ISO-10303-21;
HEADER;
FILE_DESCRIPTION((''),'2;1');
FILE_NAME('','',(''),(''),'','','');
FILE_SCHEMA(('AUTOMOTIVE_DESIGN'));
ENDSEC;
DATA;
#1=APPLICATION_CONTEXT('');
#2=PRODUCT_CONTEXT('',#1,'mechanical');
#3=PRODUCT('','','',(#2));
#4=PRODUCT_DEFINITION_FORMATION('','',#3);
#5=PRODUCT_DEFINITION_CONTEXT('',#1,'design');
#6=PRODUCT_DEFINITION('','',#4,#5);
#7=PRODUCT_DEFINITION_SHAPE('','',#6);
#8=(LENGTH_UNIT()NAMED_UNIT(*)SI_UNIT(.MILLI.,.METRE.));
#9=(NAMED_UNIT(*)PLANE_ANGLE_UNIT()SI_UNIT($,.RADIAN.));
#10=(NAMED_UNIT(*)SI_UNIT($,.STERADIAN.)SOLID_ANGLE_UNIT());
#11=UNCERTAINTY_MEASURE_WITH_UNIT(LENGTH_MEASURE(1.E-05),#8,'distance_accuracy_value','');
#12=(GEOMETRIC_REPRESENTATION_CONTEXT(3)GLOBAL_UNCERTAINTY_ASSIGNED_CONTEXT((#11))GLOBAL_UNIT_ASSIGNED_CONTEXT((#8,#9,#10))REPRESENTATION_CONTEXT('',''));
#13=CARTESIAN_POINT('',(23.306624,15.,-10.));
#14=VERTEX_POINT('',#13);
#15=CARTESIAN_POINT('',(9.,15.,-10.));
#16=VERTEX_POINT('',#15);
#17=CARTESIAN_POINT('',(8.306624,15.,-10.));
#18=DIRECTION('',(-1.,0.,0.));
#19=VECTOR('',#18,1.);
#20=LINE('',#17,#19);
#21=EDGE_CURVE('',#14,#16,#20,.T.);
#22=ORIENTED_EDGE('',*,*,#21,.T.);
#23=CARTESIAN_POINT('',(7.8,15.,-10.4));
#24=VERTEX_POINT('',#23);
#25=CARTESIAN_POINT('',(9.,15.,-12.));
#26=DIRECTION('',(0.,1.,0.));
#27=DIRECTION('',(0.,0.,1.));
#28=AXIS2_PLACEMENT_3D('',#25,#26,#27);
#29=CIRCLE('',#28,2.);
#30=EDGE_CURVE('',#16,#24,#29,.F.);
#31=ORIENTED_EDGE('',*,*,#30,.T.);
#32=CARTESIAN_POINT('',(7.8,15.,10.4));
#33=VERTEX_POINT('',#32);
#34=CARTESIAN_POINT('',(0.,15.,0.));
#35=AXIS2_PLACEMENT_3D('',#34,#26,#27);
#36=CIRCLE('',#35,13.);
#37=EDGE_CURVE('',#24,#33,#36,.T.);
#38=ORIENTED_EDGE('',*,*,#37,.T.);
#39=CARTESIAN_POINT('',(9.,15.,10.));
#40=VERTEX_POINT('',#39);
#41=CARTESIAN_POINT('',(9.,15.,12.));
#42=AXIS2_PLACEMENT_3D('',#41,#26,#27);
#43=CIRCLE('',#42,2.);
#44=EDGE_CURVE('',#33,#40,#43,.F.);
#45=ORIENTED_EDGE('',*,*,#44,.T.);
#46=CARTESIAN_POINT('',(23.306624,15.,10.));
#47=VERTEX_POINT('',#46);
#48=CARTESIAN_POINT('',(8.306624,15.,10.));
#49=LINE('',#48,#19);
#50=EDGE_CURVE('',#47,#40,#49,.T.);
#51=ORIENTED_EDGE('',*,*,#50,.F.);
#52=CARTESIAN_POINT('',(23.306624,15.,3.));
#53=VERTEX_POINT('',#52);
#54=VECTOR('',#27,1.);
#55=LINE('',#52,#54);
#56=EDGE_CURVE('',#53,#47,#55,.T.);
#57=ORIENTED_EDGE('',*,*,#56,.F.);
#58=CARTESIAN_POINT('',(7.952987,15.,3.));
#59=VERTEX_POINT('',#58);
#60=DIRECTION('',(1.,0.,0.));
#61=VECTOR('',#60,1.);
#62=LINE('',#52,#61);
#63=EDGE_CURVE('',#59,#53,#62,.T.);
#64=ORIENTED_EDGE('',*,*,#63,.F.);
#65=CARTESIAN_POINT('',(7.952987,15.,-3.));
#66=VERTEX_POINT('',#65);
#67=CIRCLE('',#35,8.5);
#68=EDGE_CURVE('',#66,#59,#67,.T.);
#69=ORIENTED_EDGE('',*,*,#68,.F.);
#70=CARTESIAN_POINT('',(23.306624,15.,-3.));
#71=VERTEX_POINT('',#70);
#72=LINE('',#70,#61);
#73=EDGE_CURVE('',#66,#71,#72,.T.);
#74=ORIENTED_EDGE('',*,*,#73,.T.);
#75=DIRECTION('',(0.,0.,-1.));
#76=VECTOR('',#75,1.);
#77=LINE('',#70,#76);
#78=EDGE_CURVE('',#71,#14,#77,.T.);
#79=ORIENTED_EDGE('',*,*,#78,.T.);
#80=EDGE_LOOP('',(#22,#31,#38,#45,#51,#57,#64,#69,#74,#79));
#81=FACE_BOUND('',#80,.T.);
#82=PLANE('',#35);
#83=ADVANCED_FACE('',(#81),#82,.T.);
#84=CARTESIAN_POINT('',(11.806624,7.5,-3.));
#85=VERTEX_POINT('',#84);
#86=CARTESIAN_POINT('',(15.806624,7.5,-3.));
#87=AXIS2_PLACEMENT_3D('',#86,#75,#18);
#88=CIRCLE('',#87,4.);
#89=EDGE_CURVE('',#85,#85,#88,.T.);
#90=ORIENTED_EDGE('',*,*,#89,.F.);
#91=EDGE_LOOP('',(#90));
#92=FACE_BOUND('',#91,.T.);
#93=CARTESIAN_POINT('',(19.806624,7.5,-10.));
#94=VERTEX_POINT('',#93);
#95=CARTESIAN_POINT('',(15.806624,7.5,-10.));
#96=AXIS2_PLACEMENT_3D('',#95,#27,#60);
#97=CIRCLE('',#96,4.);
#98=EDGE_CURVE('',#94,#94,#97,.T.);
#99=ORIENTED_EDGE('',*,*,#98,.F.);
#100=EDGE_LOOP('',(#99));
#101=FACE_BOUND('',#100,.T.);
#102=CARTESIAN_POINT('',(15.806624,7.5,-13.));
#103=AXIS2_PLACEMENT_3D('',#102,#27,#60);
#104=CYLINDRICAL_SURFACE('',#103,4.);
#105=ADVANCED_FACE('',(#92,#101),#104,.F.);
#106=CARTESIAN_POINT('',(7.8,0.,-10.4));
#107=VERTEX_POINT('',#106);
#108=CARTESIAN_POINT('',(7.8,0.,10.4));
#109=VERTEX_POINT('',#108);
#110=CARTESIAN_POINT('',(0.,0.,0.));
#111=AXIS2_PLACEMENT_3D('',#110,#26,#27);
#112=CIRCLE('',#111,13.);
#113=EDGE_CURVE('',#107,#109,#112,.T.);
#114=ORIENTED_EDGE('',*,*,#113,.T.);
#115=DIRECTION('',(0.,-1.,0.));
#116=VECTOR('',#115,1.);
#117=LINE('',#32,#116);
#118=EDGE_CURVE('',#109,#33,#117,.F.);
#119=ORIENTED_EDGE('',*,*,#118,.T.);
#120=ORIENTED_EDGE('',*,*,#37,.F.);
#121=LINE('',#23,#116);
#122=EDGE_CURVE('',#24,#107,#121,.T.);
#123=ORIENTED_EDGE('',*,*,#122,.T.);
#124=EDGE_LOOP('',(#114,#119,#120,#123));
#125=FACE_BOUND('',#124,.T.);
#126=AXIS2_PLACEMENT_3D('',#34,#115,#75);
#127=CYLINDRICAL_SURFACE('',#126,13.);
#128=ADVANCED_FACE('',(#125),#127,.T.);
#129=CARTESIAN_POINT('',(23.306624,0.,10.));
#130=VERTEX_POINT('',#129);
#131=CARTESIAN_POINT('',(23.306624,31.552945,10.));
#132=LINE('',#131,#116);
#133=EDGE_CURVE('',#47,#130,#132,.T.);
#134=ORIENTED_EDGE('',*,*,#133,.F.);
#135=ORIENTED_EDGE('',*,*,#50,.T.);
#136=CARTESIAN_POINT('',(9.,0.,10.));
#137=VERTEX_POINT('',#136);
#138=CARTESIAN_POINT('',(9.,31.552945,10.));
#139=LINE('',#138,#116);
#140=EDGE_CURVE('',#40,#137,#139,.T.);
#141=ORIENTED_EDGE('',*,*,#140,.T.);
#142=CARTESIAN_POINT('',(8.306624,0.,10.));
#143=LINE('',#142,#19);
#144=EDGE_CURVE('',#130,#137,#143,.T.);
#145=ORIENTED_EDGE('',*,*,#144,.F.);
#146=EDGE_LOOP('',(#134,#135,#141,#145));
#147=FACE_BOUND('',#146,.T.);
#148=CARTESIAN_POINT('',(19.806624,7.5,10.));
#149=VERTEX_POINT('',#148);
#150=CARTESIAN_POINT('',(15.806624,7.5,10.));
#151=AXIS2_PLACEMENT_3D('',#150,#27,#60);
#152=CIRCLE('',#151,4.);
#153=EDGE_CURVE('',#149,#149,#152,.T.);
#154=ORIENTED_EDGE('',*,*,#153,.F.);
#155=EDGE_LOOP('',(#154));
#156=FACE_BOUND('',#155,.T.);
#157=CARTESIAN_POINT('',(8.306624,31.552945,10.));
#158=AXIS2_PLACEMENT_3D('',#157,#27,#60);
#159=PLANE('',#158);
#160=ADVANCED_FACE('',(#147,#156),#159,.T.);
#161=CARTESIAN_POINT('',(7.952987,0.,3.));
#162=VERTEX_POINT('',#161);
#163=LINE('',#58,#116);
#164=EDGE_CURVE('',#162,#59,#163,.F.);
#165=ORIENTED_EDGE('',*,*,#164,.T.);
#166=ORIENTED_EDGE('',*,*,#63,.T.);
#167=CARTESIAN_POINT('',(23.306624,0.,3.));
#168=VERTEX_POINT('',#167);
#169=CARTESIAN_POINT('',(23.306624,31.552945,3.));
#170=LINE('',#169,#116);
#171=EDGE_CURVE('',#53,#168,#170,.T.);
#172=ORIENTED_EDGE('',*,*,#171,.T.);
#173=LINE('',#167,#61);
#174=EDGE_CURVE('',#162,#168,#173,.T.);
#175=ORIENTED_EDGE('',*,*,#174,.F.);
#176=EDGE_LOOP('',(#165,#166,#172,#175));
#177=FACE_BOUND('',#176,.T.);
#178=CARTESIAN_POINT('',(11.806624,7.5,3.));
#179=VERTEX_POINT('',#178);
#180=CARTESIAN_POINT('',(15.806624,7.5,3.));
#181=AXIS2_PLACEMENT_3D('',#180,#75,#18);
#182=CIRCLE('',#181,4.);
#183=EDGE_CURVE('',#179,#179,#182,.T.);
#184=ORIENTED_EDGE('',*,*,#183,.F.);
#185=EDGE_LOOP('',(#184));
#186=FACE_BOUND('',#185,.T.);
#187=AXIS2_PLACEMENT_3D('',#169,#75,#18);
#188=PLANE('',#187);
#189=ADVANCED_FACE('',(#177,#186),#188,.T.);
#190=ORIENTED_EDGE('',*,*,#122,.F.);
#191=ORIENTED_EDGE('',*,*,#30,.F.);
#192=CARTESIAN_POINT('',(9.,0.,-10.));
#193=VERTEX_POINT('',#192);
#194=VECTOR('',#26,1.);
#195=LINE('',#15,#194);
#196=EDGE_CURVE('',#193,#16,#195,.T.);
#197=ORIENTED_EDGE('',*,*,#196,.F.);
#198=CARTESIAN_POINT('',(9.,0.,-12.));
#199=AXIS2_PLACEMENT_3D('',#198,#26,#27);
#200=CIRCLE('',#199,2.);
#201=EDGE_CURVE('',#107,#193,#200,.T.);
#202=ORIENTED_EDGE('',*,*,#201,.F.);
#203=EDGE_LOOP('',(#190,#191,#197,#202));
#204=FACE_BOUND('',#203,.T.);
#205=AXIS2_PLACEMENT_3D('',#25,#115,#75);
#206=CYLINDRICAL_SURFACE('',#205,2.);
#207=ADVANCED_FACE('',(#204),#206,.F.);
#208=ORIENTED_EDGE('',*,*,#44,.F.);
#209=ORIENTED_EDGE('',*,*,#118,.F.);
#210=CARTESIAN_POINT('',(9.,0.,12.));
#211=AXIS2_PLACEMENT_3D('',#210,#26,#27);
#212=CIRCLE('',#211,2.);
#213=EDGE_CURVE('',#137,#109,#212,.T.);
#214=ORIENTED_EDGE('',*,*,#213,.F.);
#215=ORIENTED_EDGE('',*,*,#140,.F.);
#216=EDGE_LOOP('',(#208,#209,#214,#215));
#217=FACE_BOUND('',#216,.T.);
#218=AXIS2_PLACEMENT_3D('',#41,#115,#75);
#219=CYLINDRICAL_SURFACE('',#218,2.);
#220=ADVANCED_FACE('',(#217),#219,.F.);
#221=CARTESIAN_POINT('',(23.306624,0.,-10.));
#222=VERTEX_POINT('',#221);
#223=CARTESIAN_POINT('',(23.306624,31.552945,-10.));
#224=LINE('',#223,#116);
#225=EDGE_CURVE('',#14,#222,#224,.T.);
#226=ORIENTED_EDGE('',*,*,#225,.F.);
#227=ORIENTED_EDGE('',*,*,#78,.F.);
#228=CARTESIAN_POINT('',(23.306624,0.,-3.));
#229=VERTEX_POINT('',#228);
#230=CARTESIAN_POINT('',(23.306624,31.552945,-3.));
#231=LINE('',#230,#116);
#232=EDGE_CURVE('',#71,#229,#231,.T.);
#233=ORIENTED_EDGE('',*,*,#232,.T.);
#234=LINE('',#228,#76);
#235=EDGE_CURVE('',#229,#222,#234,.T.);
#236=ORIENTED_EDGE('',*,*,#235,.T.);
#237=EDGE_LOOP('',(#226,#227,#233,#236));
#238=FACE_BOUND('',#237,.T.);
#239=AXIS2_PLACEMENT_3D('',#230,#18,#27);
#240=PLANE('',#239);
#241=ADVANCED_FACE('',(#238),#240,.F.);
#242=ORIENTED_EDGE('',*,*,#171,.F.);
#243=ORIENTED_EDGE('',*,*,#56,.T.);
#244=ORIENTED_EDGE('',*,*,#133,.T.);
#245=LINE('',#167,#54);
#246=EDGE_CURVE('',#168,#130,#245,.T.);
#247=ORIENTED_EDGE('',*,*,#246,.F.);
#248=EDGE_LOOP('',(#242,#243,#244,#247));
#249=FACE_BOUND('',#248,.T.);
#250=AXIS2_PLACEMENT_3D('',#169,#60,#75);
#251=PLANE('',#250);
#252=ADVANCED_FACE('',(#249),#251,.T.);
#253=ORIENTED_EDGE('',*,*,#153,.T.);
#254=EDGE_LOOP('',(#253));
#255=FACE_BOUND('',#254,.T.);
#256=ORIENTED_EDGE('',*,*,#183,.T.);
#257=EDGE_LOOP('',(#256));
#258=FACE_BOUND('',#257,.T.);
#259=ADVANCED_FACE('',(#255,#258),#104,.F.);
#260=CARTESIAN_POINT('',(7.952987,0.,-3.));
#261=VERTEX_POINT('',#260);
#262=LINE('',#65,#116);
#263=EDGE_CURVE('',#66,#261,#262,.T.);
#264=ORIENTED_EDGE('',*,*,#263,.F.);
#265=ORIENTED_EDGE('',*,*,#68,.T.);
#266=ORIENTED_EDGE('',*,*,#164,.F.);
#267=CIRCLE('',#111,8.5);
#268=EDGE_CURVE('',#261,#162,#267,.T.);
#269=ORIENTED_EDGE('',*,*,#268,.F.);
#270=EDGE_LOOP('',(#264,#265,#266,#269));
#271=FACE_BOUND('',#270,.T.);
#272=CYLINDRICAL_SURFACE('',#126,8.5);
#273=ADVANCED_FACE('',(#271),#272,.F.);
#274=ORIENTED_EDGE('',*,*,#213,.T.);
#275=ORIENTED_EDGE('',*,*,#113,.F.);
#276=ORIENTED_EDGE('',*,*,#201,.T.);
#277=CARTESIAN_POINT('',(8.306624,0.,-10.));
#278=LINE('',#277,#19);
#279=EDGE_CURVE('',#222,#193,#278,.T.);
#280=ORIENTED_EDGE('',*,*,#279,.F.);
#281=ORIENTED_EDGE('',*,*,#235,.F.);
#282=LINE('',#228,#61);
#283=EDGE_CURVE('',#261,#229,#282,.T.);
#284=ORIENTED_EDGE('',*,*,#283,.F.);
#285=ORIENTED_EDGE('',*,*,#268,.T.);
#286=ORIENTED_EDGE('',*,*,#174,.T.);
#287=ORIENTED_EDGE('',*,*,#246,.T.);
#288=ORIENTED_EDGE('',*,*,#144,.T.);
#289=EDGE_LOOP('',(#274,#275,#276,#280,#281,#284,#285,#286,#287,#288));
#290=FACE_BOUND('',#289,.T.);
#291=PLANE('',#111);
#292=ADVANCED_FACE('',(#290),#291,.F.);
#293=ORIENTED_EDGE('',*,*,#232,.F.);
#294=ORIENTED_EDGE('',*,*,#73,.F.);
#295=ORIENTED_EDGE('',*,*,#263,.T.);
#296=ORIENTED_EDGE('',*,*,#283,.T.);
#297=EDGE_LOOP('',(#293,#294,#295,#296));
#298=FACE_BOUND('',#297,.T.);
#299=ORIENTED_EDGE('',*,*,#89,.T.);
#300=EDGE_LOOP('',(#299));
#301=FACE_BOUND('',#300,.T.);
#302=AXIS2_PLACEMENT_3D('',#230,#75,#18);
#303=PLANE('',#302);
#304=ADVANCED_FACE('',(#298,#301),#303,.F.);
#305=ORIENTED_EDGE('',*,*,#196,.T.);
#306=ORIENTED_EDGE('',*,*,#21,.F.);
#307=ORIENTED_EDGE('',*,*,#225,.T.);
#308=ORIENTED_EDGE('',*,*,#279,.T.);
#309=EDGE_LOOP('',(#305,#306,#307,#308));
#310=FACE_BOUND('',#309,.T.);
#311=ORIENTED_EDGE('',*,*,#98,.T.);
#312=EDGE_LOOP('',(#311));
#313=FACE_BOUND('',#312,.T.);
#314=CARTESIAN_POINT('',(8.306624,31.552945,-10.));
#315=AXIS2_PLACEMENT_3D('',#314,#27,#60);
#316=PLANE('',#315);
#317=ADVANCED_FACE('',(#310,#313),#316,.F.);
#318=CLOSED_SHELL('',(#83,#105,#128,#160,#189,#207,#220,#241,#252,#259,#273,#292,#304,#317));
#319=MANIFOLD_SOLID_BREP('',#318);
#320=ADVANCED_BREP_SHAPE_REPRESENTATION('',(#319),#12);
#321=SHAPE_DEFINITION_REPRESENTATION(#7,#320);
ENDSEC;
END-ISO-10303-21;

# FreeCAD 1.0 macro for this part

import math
import FreeCAD as App
import Part
import Sketcher


def edges_at(feature, points):
    """Names of the edges that pass closest to the given points."""
    edges = feature.Shape.Edges
    near = lambda p: min(range(len(edges)), key=lambda i: edges[i].distToShape(Part.Vertex(*p))[0])
    return sorted({f"Edge{near(p) + 1}" for p in points})

doc = App.newDocument("Part")
body = doc.addObject("PartDesign::Body", "Body")

sketch1 = doc.addObject("Sketcher::SketchObject", "Sketch")
body.addObject(sketch1)
sketch1.AttachmentSupport = (doc.XZ_Plane, [""])
sketch1.MapMode = "FlatFace"
sketch1.addGeometry(Part.Circle(App.Vector(0, 0, 0), App.Vector(0, 0, 1), 13), False)
sketch1.addGeometry(Part.Circle(App.Vector(0, 0, 0), App.Vector(0, 0, 1), 8), False)
sketch1.addConstraint(Sketcher.Constraint("Coincident", 0, 3, -1, 1))
sketch1.addConstraint(Sketcher.Constraint("Coincident", 1, 3, -1, 1))
sketch1.addConstraint(Sketcher.Constraint("Diameter", 0, 26.0))
sketch1.addConstraint(Sketcher.Constraint("Diameter", 1, 17.0))
pad1 = doc.addObject("PartDesign::Pad", "Pad")
body.addObject(pad1)
pad1.Profile = sketch1
pad1.Length = 15
pad1.Reversed = True

sketch2 = doc.addObject("Sketcher::SketchObject", "Sketch001")
body.addObject(sketch2)
sketch2.AttachmentSupport = (doc.XZ_Plane, [""])
sketch2.MapMode = "FlatFace"
sketch2.addGeometry(Part.LineSegment(App.Vector(13, -3, 0), App.Vector(23, -3, 0)), False)
sketch2.addGeometry(Part.LineSegment(App.Vector(23, -3, 0), App.Vector(23, -10, 0)), False)
sketch2.addGeometry(Part.LineSegment(App.Vector(23, -10, 0), App.Vector(8, -10, 0)), False)
sketch2.addGeometry(Part.ArcOfCircle(Part.Circle(App.Vector(0, 0, 0), App.Vector(0, 0, 1), 13), math.radians(-50), math.radians(-13)), False)
sketch2.addConstraint(Sketcher.Constraint("Coincident", 0, 2, 1, 1))
sketch2.addConstraint(Sketcher.Constraint("Coincident", 1, 2, 2, 1))
sketch2.addConstraint(Sketcher.Constraint("Coincident", 2, 2, 3, 1))
sketch2.addConstraint(Sketcher.Constraint("Coincident", 3, 2, 0, 1))
sketch2.addConstraint(Sketcher.Constraint("Horizontal", 0))
sketch2.addConstraint(Sketcher.Constraint("Vertical", 1))
sketch2.addConstraint(Sketcher.Constraint("Horizontal", 2))
sketch2.addConstraint(Sketcher.Constraint("Coincident", 3, 3, -1, 1))
sketch2.addConstraint(Sketcher.Constraint("Radius", 3, 13.0))
sketch2.addConstraint(Sketcher.Constraint("DistanceX", 2, 2, 2, 1, 15.0))
sketch2.addConstraint(Sketcher.Constraint("DistanceY", 1, 2, 1, 1, 7.0))
sketch2.addConstraint(Sketcher.Constraint("DistanceY", 0, 2, -1, 1, 3.0))
pad2 = doc.addObject("PartDesign::Pad", "Pad001")
body.addObject(pad2)
pad2.Profile = sketch2
pad2.Length = 15
pad2.Reversed = True
doc.recompute()

mirrored = doc.addObject("PartDesign::Mirrored", "Mirrored")
body.addObject(mirrored)
mirrored.Originals = [pad2]
mirrored.MirrorPlane = (doc.XY_Plane, [""])
body.Tip = mirrored

sketch3 = doc.addObject("Sketcher::SketchObject", "Sketch002")
body.addObject(sketch3)
sketch3.AttachmentSupport = (doc.XZ_Plane, [""])
sketch3.MapMode = "FlatFace"
sketch3.AttachmentOffset = App.Placement(App.Vector(0, 0, -15), App.Rotation())
sketch3.addGeometry(Part.LineSegment(App.Vector(0, -3, 0), App.Vector(0, 3, 0)), False)
sketch3.addGeometry(Part.LineSegment(App.Vector(0, 3, 0), App.Vector(23, 3, 0)), False)
sketch3.addGeometry(Part.LineSegment(App.Vector(23, 3, 0), App.Vector(23, -3, 0)), False)
sketch3.addGeometry(Part.LineSegment(App.Vector(23, -3, 0), App.Vector(0, -3, 0)), False)
sketch3.addConstraint(Sketcher.Constraint("Coincident", 0, 2, 1, 1))
sketch3.addConstraint(Sketcher.Constraint("Coincident", 1, 2, 2, 1))
sketch3.addConstraint(Sketcher.Constraint("Coincident", 2, 2, 3, 1))
sketch3.addConstraint(Sketcher.Constraint("Coincident", 3, 2, 0, 1))
sketch3.addConstraint(Sketcher.Constraint("Vertical", 0))
sketch3.addConstraint(Sketcher.Constraint("Horizontal", 1))
sketch3.addConstraint(Sketcher.Constraint("Vertical", 2))
sketch3.addConstraint(Sketcher.Constraint("Horizontal", 3))
sketch3.addConstraint(Sketcher.Constraint("Symmetric", 0, 2, 3, 2, -1, 1))
sketch3.addConstraint(Sketcher.Constraint("DistanceY", 0, 1, 0, 2, 6.0))
sketch3.addConstraint(Sketcher.Constraint("DistanceX", 1, 1, 1, 2, 23.306624))
pocket1 = doc.addObject("PartDesign::Pocket", "Pocket")
body.addObject(pocket1)
pocket1.Profile = sketch3
pocket1.Type = "ThroughAll"
pocket1.Reversed = True

sketch4 = doc.addObject("Sketcher::SketchObject", "Sketch003")
body.addObject(sketch4)
sketch4.AttachmentSupport = (doc.XY_Plane, [""])
sketch4.MapMode = "FlatFace"
sketch4.AttachmentOffset = App.Placement(App.Vector(0, 0, 10), App.Rotation())
sketch4.addGeometry(Part.Circle(App.Vector(15.8, 7.5, 0), App.Vector(0, 0, 1), 4), False)
sketch4.addConstraint(Sketcher.Constraint("Diameter", 0, 8.0))
sketch4.addConstraint(Sketcher.Constraint("DistanceY", -1, 1, 0, 3, 7.5))
sketch4.addConstraint(Sketcher.Constraint("DistanceX", -1, 1, 0, 3, 15.806624))
pocket2 = doc.addObject("PartDesign::Pocket", "Pocket001")
body.addObject(pocket2)
pocket2.Profile = sketch4
pocket2.Type = "ThroughAll"
doc.recompute()

fillet = doc.addObject("PartDesign::Fillet", "Fillet")
body.addObject(fillet)
fillet.Base = (pocket2, edges_at(pocket2, [(8.307, 7.5, 10)]))
fillet.Radius = 2
doc.recompute()

fillet2 = doc.addObject("PartDesign::Fillet", "Fillet001")
body.addObject(fillet2)
fillet2.Base = (fillet, edges_at(fillet, [(8.307, 7.5, -10)]))
fillet2.Radius = 2

doc.recompute()
